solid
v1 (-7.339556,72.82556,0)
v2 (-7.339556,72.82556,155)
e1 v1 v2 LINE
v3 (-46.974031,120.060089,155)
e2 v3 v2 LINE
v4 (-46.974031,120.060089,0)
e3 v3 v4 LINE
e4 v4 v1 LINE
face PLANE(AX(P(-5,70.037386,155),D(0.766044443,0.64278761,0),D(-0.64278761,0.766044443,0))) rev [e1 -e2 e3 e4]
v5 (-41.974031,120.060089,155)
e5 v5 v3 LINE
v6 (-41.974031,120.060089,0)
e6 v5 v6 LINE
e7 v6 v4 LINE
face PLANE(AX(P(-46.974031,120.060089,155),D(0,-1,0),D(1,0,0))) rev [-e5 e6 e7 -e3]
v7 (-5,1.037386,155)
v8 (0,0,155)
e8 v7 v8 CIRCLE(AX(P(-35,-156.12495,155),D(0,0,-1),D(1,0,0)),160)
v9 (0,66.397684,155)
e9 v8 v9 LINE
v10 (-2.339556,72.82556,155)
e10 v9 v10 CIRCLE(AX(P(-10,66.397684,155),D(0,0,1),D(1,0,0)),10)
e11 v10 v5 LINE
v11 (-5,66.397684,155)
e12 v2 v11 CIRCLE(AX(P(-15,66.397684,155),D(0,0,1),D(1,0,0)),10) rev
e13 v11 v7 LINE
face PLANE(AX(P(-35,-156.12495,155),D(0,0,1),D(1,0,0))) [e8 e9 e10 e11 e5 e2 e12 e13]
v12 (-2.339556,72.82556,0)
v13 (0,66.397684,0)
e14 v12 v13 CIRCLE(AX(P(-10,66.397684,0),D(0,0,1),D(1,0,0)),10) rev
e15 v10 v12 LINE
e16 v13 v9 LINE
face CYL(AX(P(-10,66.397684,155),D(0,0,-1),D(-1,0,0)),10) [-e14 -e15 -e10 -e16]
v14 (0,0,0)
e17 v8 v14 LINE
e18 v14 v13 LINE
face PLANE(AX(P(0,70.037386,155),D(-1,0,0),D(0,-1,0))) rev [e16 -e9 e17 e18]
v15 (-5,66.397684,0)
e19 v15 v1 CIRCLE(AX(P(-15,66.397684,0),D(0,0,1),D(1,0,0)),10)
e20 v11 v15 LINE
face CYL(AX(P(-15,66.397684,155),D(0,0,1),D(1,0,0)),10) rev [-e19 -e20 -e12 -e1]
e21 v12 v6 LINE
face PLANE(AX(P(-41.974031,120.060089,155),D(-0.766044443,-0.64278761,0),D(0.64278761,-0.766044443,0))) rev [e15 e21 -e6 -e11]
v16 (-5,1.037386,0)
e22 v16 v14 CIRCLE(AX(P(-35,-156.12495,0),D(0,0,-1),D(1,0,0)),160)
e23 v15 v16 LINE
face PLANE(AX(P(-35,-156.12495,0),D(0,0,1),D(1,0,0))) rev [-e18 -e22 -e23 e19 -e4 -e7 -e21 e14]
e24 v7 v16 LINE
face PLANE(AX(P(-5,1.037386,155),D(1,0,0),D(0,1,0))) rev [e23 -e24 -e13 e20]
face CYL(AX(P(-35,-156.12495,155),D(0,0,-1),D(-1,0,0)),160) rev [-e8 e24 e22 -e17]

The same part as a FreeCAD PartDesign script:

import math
import FreeCAD as App
import Part
import Sketcher
Q = App.Units.Quantity


def edges_at(feature, points):
    """Names of the edges that pass closest to the given points."""
    edges = feature.Shape.Edges
    near = lambda p: min(range(len(edges)), key=lambda i: edges[i].distToShape(Part.Vertex(*p))[0])
    return sorted({f"Edge{near(p) + 1}" for p in points})

doc = App.newDocument("Part")
body = doc.addObject("PartDesign::Body", "Body")

sketch1 = body.newObject("Sketcher::SketchObject", "Sketch")
sketch1.AttachmentSupport = (doc.getObject("XY_Plane"), [""])
sketch1.MapMode = "FlatFace"
sketch1.addGeometry(Part.LineSegment(App.Vector(-5, 70, 0), App.Vector(-5, 1, 0)), False)
sketch1.addGeometry(Part.ArcOfCircle(Part.Circle(App.Vector(-35, -156, 0), App.Vector(0, 0, 1), 160), math.radians(77.36), math.radians(79.19)), False)
sketch1.addGeometry(Part.LineSegment(App.Vector(0, 0, 0), App.Vector(0, 70, 0)), False)
sketch1.addGeometry(Part.LineSegment(App.Vector(0, 70, 0), App.Vector(-42, 120, 0)), False)
sketch1.addGeometry(Part.LineSegment(App.Vector(-42, 120, 0), App.Vector(-47, 120, 0)), False)
sketch1.addGeometry(Part.LineSegment(App.Vector(-47, 120, 0), App.Vector(-5, 70, 0)), False)
sketch1.addConstraint(Sketcher.Constraint("Coincident", 0, 2, 1, 2))
sketch1.addConstraint(Sketcher.Constraint("Coincident", 1, 1, 2, 1))
sketch1.addConstraint(Sketcher.Constraint("Coincident", 2, 2, 3, 1))
sketch1.addConstraint(Sketcher.Constraint("Coincident", 3, 2, 4, 1))
sketch1.addConstraint(Sketcher.Constraint("Coincident", 4, 2, 5, 1))
sketch1.addConstraint(Sketcher.Constraint("Coincident", 5, 2, 0, 1))
sketch1.addConstraint(Sketcher.Constraint("Vertical", 0))
sketch1.addConstraint(Sketcher.Constraint("Vertical", 2))
sketch1.addConstraint(Sketcher.Constraint("Horizontal", 4))
sketch1.addConstraint(Sketcher.Constraint("Coincident", 1, 1, -1, 1))
sketch1.addConstraint(Sketcher.Constraint("Parallel", 3, 5))
sketch1.addConstraint(Sketcher.Constraint("Horizontal", 2, 2, 5, 2))
sketch1.addConstraint(Sketcher.Constraint("DistanceX", 4, 2, 4, 1, Q("5 mm")))
sketch1.addConstraint(Sketcher.Constraint("DistanceY", 0, 2, 0, 1, Q("69 mm")))
sketch1.addConstraint(Sketcher.Constraint("Angle", 3, Q("130 deg")))
sketch1.addConstraint(Sketcher.Constraint("DistanceX", 1, 3, -1, 1, Q("34.999999 mm")))
sketch1.addConstraint(Sketcher.Constraint("Distance", 3, Q("65.3 mm")))
sketch1.addConstraint(Sketcher.Constraint("Radius", 1, Q("159.999996 mm")))
pad1 = body.newObject("PartDesign::Pad", "Pad")
pad1.Profile = sketch1
pad1.Length = 155
doc.recompute()

fillet = body.newObject("PartDesign::Fillet", "Fillet")
fillet.Base = (pad1, edges_at(pad1, [(-5, 70.037, 77.5), (0, 70.037, 77.5)]))
fillet.Radius = 10

doc.recompute()
